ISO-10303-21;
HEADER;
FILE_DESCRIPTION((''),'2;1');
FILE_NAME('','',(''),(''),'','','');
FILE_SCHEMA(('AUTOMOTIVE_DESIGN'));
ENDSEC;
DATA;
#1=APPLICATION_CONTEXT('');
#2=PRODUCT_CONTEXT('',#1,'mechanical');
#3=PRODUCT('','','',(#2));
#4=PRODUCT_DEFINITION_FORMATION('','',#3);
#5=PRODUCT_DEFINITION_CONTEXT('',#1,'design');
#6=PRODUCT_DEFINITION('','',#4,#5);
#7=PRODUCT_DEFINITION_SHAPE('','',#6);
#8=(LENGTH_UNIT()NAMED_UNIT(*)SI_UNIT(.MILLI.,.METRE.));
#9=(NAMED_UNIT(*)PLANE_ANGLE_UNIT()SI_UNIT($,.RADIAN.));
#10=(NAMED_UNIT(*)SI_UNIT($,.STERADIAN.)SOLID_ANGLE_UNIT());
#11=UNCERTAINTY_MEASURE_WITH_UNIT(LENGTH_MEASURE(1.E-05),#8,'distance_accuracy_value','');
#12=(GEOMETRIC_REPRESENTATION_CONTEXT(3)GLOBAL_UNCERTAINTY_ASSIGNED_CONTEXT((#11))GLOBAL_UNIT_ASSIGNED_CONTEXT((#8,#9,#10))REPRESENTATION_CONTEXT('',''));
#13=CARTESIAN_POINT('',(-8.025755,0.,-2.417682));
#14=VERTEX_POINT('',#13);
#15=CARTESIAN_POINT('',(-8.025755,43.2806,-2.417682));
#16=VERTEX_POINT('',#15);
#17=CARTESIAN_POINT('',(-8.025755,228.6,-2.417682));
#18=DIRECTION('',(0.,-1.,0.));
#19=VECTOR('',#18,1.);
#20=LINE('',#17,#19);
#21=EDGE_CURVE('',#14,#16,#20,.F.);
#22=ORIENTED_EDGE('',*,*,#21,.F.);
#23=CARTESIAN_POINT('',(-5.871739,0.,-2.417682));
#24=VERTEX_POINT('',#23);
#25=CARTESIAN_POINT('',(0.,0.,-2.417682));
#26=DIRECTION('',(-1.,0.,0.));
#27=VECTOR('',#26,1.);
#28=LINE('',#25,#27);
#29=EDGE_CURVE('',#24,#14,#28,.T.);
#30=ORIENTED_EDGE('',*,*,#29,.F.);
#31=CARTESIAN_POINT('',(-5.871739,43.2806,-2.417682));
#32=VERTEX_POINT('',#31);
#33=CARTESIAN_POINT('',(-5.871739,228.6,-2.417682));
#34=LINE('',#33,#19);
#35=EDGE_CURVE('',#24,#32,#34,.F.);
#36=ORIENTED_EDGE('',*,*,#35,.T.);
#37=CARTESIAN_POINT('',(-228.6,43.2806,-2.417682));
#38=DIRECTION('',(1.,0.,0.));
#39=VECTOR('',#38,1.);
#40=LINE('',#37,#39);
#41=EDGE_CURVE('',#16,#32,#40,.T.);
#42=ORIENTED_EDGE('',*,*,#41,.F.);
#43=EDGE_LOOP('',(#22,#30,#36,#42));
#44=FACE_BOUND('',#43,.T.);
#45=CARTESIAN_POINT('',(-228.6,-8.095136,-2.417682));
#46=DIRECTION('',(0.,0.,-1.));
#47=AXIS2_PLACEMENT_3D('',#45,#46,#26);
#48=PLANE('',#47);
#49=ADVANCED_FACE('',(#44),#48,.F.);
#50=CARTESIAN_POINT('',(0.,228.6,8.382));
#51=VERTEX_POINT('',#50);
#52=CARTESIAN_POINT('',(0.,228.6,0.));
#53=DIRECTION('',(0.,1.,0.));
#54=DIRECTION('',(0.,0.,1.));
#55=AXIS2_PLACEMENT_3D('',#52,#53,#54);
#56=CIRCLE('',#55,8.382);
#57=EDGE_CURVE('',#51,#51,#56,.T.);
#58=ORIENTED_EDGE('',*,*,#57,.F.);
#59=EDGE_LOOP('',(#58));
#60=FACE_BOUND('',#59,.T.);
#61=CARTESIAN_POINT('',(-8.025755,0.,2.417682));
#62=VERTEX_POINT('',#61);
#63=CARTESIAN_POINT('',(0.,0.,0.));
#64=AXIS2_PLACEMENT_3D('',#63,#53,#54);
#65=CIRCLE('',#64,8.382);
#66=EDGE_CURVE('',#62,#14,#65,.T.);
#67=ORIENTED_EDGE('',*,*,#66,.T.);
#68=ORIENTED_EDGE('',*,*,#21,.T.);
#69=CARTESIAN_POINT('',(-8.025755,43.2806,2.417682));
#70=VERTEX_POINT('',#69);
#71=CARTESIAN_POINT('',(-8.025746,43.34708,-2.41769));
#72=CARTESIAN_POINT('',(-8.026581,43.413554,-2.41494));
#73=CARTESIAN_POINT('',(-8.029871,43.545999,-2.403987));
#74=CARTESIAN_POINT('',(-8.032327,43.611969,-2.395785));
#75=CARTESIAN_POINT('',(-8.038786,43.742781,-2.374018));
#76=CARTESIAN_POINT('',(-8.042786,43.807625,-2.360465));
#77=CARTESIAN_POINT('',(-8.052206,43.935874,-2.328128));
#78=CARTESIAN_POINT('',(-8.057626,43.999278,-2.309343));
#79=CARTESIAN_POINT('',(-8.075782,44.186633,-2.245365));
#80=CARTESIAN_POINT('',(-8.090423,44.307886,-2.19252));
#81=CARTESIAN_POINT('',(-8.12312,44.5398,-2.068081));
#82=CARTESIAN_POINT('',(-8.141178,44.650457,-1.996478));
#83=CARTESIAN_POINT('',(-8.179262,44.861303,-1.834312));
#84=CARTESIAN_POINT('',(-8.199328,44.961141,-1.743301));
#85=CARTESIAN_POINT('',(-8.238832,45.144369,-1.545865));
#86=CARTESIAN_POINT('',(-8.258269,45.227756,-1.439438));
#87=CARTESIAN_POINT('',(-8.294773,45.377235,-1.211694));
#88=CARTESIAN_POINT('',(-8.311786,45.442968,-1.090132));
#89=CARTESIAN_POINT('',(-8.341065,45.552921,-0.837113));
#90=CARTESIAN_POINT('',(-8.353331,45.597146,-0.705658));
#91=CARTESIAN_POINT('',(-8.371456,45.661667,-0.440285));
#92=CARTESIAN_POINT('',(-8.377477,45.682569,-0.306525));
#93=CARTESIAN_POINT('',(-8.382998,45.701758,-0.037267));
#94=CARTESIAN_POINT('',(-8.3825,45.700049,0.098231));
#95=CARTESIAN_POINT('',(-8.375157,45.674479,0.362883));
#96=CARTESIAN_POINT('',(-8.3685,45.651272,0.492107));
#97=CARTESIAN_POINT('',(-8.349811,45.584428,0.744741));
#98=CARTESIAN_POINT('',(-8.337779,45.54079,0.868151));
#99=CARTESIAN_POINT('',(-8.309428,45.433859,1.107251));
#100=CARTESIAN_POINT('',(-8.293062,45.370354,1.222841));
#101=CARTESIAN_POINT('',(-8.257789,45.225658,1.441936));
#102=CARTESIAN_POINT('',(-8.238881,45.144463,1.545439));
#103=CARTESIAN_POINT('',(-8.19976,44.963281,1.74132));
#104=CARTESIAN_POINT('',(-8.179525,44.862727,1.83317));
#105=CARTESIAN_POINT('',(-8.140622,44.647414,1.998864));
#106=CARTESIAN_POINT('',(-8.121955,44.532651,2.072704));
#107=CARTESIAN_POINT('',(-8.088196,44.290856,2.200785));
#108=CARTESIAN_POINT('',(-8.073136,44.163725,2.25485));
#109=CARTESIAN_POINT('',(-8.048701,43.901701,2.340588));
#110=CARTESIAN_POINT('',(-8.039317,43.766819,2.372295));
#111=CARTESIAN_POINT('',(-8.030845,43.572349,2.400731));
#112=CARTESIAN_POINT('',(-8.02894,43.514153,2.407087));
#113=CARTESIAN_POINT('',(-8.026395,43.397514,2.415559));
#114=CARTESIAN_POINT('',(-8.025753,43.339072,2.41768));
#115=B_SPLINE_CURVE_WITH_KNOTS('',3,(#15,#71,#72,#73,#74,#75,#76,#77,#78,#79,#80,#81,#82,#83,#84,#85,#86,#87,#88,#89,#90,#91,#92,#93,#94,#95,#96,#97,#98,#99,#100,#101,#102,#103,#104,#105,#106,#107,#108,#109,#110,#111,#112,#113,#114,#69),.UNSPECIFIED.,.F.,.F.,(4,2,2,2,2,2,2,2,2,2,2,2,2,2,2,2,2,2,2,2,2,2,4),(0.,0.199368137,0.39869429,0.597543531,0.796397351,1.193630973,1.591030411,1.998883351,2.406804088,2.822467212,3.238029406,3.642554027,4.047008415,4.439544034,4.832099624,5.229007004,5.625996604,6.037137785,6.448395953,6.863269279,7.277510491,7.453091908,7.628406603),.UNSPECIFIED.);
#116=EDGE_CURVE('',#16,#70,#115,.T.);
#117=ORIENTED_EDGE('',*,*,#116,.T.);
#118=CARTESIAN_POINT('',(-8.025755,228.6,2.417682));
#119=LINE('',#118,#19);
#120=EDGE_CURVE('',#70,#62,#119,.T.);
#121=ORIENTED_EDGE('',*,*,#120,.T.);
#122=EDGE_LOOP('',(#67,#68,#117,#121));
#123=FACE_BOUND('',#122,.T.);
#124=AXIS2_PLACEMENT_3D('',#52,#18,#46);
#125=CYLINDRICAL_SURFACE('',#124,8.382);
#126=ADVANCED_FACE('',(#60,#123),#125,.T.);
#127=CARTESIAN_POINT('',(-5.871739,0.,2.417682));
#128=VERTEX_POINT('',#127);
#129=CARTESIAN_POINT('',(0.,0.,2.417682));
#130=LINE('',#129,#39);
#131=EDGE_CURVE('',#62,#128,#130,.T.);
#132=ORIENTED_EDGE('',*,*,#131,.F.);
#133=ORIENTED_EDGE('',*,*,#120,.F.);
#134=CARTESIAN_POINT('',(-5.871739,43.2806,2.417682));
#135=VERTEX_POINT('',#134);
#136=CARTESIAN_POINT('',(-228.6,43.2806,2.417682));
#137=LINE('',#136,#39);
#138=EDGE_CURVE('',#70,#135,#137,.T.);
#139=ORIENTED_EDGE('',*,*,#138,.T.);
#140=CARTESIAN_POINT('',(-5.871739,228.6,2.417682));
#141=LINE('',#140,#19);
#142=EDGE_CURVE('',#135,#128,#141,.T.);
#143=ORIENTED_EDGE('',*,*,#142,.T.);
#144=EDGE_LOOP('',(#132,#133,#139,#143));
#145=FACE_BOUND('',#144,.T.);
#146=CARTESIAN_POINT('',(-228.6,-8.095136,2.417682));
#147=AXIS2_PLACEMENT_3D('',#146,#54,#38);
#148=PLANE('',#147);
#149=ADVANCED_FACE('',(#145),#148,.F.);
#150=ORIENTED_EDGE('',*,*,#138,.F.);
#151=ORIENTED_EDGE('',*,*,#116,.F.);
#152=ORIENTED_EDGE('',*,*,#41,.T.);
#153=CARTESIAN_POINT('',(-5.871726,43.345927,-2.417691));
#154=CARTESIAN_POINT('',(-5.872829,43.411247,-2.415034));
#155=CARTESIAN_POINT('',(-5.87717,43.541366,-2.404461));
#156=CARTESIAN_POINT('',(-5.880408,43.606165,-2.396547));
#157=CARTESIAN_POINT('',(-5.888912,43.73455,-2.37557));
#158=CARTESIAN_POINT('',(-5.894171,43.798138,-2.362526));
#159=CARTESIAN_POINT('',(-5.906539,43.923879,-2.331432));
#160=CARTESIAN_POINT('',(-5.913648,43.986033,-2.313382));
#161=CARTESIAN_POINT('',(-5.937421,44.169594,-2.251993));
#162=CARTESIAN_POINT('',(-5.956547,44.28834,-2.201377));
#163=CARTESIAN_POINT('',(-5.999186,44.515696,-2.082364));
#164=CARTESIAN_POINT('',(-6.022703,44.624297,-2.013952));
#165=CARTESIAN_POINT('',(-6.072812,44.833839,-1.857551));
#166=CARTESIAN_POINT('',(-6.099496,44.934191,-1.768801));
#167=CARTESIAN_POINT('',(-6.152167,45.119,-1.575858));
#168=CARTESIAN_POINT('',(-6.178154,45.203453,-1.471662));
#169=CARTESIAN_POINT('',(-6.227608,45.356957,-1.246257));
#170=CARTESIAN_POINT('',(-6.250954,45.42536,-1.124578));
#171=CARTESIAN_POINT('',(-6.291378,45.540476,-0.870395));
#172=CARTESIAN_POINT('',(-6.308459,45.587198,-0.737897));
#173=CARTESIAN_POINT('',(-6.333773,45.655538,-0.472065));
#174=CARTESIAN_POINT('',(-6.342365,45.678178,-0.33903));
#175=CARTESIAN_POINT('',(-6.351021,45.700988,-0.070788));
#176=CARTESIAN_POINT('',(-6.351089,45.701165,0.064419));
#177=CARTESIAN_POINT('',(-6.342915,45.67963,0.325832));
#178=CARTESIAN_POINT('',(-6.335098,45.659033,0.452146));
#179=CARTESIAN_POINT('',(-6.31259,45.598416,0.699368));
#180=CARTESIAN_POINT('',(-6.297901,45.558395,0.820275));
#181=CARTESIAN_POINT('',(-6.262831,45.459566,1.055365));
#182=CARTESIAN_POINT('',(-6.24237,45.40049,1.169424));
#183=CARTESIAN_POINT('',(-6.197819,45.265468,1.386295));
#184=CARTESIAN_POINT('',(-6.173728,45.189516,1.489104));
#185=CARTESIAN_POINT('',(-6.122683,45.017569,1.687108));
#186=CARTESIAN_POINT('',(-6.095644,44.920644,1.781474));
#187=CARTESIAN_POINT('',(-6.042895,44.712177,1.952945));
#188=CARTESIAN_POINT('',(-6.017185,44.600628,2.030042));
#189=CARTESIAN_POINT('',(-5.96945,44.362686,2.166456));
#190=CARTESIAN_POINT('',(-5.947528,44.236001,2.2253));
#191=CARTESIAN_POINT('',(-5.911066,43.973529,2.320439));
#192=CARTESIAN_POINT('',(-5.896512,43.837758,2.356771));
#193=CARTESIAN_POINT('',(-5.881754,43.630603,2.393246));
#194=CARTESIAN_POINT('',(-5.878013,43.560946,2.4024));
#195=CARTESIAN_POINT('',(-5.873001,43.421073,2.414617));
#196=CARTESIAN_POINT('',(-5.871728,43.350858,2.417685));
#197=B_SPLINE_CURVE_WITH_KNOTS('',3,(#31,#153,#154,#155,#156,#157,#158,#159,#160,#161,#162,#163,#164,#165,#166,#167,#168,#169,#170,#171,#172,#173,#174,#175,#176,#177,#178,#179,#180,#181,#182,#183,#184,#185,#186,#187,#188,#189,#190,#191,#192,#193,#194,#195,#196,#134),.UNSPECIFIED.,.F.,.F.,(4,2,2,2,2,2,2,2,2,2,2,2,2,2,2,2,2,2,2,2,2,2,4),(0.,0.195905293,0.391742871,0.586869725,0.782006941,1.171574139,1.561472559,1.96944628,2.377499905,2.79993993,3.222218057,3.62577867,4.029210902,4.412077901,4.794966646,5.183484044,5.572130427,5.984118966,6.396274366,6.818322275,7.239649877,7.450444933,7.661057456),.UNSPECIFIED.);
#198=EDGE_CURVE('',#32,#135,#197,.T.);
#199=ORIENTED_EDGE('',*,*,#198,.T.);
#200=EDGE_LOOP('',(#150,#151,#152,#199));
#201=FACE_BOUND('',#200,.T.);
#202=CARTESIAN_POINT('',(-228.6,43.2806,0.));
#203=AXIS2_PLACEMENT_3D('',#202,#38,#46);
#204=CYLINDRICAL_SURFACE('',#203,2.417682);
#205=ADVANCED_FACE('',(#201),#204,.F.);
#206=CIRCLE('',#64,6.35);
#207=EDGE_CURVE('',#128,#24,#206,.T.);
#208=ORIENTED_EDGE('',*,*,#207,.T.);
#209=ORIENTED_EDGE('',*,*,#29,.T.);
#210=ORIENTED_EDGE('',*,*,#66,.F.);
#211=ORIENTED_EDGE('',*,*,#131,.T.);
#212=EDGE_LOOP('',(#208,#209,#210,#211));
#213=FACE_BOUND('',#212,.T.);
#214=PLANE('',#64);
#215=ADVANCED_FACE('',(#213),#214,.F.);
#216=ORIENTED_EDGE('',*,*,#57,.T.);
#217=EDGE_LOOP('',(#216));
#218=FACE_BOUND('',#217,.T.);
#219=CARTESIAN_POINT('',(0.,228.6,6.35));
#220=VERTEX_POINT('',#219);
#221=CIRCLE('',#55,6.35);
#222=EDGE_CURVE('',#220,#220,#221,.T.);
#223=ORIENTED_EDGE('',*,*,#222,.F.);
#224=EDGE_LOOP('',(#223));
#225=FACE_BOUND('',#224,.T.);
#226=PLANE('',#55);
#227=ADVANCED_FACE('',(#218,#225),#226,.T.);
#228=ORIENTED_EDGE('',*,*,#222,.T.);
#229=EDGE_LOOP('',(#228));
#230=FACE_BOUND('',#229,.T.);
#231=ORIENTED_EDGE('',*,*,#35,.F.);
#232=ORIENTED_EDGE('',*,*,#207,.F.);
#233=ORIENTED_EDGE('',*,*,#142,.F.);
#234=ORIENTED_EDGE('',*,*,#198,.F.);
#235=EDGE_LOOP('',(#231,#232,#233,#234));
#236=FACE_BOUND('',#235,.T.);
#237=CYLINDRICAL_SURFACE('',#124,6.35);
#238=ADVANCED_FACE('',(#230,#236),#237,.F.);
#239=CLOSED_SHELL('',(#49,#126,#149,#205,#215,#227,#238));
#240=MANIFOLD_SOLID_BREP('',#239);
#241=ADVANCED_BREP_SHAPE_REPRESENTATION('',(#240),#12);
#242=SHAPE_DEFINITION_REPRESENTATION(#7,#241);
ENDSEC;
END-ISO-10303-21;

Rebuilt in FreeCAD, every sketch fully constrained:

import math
import FreeCAD as App
import Part
import Sketcher
from FreeCAD import Vector
Q = App.Units.Quantity

doc = App.newDocument("Part")
params = doc.addObject("Spreadsheet::Sheet", "Params")
for row, (alias, value) in enumerate([
    ("sketch1_diameter", "0.5 in"),
    ("sketch1_diameter2", "0.66 in"),
    ("pad1_length", "9 in"),
    ("pocket1_length", "9 in"),
], start=1):
    params.set(f"A{row}", alias)
    params.set(f"B{row}", "=" + value)
    params.setAlias(f"B{row}", alias)

body = doc.addObject("PartDesign::Body", "Body")

sketch1 = body.newObject("Sketcher::SketchObject", "Sketch")
sketch1.AttachmentSupport = (doc.getObject("XZ_Plane"), [""])
sketch1.MapMode = "FlatFace"
sketch1.addGeometry([
    Part.Circle(Vector(0, 0, 0), Vector(0, 0, 1), 8),
    Part.Circle(Vector(0, 0, 0), Vector(0, 0, 1), 6),
], False)
sketch1.addConstraint([
    Sketcher.Constraint("Coincident", 0, 3, -1, 1),
    Sketcher.Constraint("Coincident", 1, 3, -1, 1),
    Sketcher.Constraint("Diameter", 1, Q("0.5 in")),
    Sketcher.Constraint("Diameter", 0, Q("0.66 in")),
])
sketch1.setExpression("Constraints[2]", "Params.sketch1_diameter")
sketch1.setExpression("Constraints[3]", "Params.sketch1_diameter2")
pad1 = body.newObject("PartDesign::Pad", "Pad")
pad1.Profile = sketch1
pad1.setExpression("Length", "Params.pad1_length")
pad1.Reversed = True

sketch2 = body.newObject("Sketcher::SketchObject", "Sketch001")
sketch2.AttachmentSupport = (doc.getObject("YZ_Plane"), [""])
sketch2.MapMode = "FlatFace"
sketch2.addGeometry([
    Part.LineSegment(Vector(43.3, 2.4, 0), Vector(-8.1, 2.4, 0)),
    Part.ArcOfCircle(Part.Circle(Vector(-8.1, 0, 0), Vector(0, 0, 1), 2.4), math.radians(90), math.radians(270)),
    Part.LineSegment(Vector(-8.1, -2.4, 0), Vector(43.3, -2.4, 0)),
    Part.ArcOfCircle(Part.Circle(Vector(43.3, 0, 0), Vector(0, 0, 1), 2.4), math.radians(-90), math.radians(90)),
], False)
sketch2.addConstraint([
    Sketcher.Constraint("Tangent", 0, 2, 1, 1),
    Sketcher.Constraint("Tangent", 1, 2, 2, 1),
    Sketcher.Constraint("Tangent", 2, 2, 3, 1),
    Sketcher.Constraint("Tangent", 3, 2, 0, 1),
    Sketcher.Constraint("Horizontal", 0),
    Sketcher.Constraint("Horizontal", 2),
    Sketcher.Constraint("PointOnObject", 1, 3, -1),
    Sketcher.Constraint("Radius", 1, 2.417682),
    Sketcher.Constraint("DistanceX", -1, 1, 3, 3, 43.2806),
    Sketcher.Constraint("DistanceX", 0, 2, 0, 1, 51.375736),
])
pocket1 = body.newObject("PartDesign::Pocket", "Pocket")
pocket1.Profile = sketch2
pocket1.setExpression("Length", "Params.pocket1_length")

doc.recompute()
